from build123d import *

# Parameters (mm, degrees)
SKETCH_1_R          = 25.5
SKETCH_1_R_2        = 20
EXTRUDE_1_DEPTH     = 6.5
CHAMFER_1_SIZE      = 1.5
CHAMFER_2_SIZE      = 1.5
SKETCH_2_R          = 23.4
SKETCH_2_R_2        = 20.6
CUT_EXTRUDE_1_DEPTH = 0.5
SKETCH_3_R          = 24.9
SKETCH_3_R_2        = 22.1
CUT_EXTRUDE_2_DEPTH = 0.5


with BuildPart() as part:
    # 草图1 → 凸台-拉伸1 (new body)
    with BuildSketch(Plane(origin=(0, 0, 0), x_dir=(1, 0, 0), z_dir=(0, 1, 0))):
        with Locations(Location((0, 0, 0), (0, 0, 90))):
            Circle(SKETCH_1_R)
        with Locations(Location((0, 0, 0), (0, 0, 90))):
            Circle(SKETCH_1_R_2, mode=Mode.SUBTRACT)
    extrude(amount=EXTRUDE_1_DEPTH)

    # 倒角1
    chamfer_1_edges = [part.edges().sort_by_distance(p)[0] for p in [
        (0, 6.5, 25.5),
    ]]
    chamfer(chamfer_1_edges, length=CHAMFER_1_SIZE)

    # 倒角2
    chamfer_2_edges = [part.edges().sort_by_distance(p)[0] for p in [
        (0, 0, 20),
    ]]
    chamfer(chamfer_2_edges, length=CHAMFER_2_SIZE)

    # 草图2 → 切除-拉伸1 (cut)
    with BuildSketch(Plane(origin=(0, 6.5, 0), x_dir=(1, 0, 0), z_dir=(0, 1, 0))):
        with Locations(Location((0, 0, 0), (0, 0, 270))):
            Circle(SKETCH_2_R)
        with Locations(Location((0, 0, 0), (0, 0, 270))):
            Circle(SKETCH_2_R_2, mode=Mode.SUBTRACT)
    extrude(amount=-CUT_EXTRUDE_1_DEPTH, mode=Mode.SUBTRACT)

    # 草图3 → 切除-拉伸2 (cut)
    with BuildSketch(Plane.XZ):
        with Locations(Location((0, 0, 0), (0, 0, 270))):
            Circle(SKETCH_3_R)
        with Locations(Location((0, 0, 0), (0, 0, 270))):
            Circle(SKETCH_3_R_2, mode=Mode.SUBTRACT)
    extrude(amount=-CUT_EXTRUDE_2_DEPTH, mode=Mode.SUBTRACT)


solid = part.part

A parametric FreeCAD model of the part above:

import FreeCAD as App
import Part
import Sketcher

V = App.Vector


def edges_at(feature, points):
    """Names of the edges that pass closest to the given points."""
    edges = feature.Shape.Edges
    near = lambda p: min(range(len(edges)), key=lambda i: edges[i].distToShape(Part.Vertex(*p))[0])
    return sorted({f"Edge{near(p) + 1}" for p in points})

doc = App.newDocument("Part")
params = doc.addObject("Spreadsheet::Sheet", "Params")
for row, (alias, value) in enumerate([
    ("sketch1_diameter", "51 mm"),
    ("sketch1_diameter2", "40 mm"),
    ("pad1_length", "6.5 mm"),
    ("chamfer_size", "1.5 mm"),
    ("chamfer2_size", "1.5 mm"),
    ("sketch2_diameter", "46.8 mm"),
    ("sketch2_diameter2", "41.2 mm"),
    ("pocket1_length", "0.5 mm"),
    ("sketch3_diameter", "49.8 mm"),
    ("sketch3_diameter2", "44.2 mm"),
    ("pocket2_length", "0.5 mm"),
], start=1):
    params.set(f"A{row}", alias)
    params.set(f"B{row}", "=" + value)
    params.setAlias(f"B{row}", alias)

body = doc.addObject("PartDesign::Body", "Body")

# Sketch on XZ plane
sketch1 = body.newObject("Sketcher::SketchObject", "Sketch")
sketch1.AttachmentSupport = (doc.getObject("XZ_Plane"), [""])
sketch1.MapMode = "FlatFace"
sketch1.addGeometry([
    Part.Circle(V(0, 0, 0), V(0, 0, 1), 26),
    Part.Circle(V(0, 0, 0), V(0, 0, 1), 20),
], False)
sketch1.addConstraint([
    Sketcher.Constraint("Coincident", 0, 3, -1, 1),
    Sketcher.Constraint("Coincident", 1, 3, -1, 1),
    Sketcher.Constraint("Diameter", 0, 51.0),
    Sketcher.Constraint("Diameter", 1, 40.0),
])
sketch1.setExpression("Constraints[2]", "Params.sketch1_diameter")
sketch1.setExpression("Constraints[3]", "Params.sketch1_diameter2")
pad1 = body.newObject("PartDesign::Pad", "Pad")
pad1.Profile = sketch1
pad1.setExpression("Length", "Params.pad1_length")
pad1.Reversed = True
doc.recompute()

chamfer = body.newObject("PartDesign::Chamfer", "Chamfer")
chamfer.Base = (pad1, edges_at(pad1, [(0, 6.5, 25.5)]))
chamfer.setExpression("Size", "Params.chamfer_size")
doc.recompute()

chamfer2 = body.newObject("PartDesign::Chamfer", "Chamfer001")
chamfer2.Base = (chamfer, edges_at(chamfer, [(0, 0, 20)]))
chamfer2.setExpression("Size", "Params.chamfer2_size")

# Sketch on XZ plane
sketch2 = body.newObject("Sketcher::SketchObject", "Sketch001")
sketch2.AttachmentSupport = (doc.getObject("XZ_Plane"), [""])
sketch2.MapMode = "FlatFace"
sketch2.AttachmentOffset = App.Placement(V(0, 0, -6.5), App.Rotation())
sketch2.addGeometry([
    Part.Circle(V(0, 0, 0), V(0, 0, 1), 23),
    Part.Circle(V(0, 0, 0), V(0, 0, 1), 21),
], False)
sketch2.addConstraint([
    Sketcher.Constraint("Coincident", 0, 3, -1, 1),
    Sketcher.Constraint("Coincident", 1, 3, -1, 1),
    Sketcher.Constraint("Diameter", 0, 46.8),
    Sketcher.Constraint("Diameter", 1, 41.2),
])
sketch2.setExpression("Constraints[2]", "Params.sketch2_diameter")
sketch2.setExpression("Constraints[3]", "Params.sketch2_diameter2")
pocket1 = body.newObject("PartDesign::Pocket", "Pocket")
pocket1.Profile = sketch2
pocket1.setExpression("Length", "Params.pocket1_length")
pocket1.Reversed = True

# Sketch on XZ plane
sketch3 = body.newObject("Sketcher::SketchObject", "Sketch002")
sketch3.AttachmentSupport = (doc.getObject("XZ_Plane"), [""])
sketch3.MapMode = "FlatFace"
sketch3.addGeometry([
    Part.Circle(V(0, 0, 0), V(0, 0, 1), 25),
    Part.Circle(V(0, 0, 0), V(0, 0, 1), 22),
], False)
sketch3.addConstraint([
    Sketcher.Constraint("Coincident", 0, 3, -1, 1),
    Sketcher.Constraint("Coincident", 1, 3, -1, 1),
    Sketcher.Constraint("Diameter", 0, 49.8),
    Sketcher.Constraint("Diameter", 1, 44.2),
])
sketch3.setExpression("Constraints[2]", "Params.sketch3_diameter")
sketch3.setExpression("Constraints[3]", "Params.sketch3_diameter2")
pocket2 = body.newObject("PartDesign::Pocket", "Pocket001")
pocket2.Profile = sketch3
pocket2.setExpression("Length", "Params.pocket2_length")

doc.recompute()
